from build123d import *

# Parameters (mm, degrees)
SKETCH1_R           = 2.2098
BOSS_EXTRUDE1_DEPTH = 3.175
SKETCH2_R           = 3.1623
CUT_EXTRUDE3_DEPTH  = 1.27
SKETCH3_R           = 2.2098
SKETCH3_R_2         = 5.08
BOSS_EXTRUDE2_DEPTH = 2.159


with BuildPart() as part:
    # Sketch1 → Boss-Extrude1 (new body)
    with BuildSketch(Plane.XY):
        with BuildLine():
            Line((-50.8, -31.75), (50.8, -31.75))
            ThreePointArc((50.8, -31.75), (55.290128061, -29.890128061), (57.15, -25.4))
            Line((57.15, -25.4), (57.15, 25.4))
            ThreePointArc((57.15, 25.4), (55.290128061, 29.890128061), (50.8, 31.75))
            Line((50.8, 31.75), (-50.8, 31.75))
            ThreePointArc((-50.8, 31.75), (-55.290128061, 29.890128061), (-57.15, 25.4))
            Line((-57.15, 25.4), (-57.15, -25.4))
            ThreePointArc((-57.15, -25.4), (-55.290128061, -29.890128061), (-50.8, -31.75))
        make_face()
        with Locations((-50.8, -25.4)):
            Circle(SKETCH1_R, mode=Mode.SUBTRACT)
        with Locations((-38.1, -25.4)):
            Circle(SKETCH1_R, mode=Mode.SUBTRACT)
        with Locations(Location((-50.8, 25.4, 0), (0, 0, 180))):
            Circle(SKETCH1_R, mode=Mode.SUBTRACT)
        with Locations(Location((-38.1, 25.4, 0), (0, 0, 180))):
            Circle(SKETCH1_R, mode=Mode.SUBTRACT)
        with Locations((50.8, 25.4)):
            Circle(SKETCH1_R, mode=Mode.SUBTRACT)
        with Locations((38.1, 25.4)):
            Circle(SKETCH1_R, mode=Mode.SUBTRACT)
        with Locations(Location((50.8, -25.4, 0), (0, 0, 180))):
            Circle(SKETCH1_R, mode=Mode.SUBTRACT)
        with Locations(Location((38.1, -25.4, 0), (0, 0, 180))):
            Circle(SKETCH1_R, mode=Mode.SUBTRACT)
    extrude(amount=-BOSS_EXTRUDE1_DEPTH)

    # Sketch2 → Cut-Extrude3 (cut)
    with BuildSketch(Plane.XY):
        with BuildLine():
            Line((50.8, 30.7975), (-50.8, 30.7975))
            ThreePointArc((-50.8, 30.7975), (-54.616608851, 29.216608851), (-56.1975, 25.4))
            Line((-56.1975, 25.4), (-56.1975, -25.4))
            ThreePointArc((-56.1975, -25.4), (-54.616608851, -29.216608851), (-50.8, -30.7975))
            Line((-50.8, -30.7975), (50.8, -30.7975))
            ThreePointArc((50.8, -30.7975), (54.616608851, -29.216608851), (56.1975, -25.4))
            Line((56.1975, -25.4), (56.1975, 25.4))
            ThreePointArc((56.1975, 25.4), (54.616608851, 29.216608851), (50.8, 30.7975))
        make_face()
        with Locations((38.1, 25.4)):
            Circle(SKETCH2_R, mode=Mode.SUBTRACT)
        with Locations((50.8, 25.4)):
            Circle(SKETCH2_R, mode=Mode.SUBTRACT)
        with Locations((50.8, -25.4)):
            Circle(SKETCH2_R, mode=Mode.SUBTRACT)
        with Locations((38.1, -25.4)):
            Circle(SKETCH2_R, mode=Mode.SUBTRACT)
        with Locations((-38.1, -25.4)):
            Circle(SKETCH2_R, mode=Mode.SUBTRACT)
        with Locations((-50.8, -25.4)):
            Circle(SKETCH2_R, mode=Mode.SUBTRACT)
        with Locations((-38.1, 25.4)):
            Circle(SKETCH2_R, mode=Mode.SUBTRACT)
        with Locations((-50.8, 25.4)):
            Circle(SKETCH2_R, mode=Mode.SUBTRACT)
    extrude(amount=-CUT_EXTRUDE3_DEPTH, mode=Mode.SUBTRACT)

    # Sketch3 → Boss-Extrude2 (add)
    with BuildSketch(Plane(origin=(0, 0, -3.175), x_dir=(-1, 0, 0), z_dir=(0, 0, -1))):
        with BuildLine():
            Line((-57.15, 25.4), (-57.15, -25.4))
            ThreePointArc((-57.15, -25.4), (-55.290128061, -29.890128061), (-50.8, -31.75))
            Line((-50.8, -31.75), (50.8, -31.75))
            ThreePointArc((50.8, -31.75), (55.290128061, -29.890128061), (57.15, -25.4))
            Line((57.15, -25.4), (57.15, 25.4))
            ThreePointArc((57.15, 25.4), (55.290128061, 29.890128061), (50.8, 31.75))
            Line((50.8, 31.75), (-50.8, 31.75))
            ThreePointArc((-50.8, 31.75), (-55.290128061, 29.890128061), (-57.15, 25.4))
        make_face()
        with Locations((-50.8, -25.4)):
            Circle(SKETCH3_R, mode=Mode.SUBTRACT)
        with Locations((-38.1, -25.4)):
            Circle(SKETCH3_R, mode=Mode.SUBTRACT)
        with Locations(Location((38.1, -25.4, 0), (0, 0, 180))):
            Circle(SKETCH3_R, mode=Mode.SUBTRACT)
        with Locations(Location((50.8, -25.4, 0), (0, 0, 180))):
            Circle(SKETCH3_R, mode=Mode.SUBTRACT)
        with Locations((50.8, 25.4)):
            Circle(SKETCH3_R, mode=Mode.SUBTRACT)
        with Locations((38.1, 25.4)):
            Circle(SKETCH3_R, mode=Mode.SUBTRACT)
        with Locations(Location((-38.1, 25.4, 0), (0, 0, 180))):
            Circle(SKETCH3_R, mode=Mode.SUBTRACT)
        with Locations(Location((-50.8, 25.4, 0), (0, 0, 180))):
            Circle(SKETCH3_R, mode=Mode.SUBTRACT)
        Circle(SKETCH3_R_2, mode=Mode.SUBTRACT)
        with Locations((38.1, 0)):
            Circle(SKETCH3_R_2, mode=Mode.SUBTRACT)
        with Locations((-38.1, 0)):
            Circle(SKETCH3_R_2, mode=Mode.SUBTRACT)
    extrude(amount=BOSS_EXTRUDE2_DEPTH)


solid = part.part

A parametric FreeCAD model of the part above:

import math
import FreeCAD as App
import Part
import Sketcher
from FreeCAD import Vector
Q = App.Units.Quantity

doc = App.newDocument("Part")
params = doc.addObject("Spreadsheet::Sheet", "Params")
for row, (alias, value) in enumerate([
    ("sketch1_width", "4 in"),
    ("sketch1_height", "2 in"),
    ("sketch1_radius", "0.25 in"),
    ("sketch1_diameter", "0.174 in"),
    ("pad1_length", "0.125 in"),
    ("sketch2_width", "4 in"),
    ("sketch2_height", "2 in"),
    ("sketch2_diameter", "0.249 in"),
    ("pocket1_length", "0.05 in"),
    ("sketch3_diameter", "0.4 in"),
    ("sketch3_width", "4 in"),
    ("sketch3_height", "2 in"),
    ("sketch3_radius", "0.25 in"),
    ("sketch3_diameter2", "0.174 in"),
    ("pad2_length", "0.085 in"),
], start=1):
    params.set(f"A{row}", alias)
    params.set(f"B{row}", "=" + value)
    params.setAlias(f"B{row}", alias)

body = doc.addObject("PartDesign::Body", "Body")

# Sketch on XY plane
sketch1 = body.newObject("Sketcher::SketchObject", "Sketch")
sketch1.AttachmentSupport = (doc.getObject("XY_Plane"), [""])
sketch1.MapMode = "FlatFace"
sketch1.addGeometry(Part.LineSegment(Vector(-50.8, -31.8, 0), Vector(50.8, -31.8, 0)), False)
sketch1.addGeometry(Part.ArcOfCircle(Part.Circle(Vector(50.8, -25.4, 0), Vector(0, 0, 1), 6.3), math.radians(-90), math.radians(0)), False)
sketch1.addGeometry(Part.LineSegment(Vector(57.1, -25.4, 0), Vector(57.1, 25.4, 0)), False)
sketch1.addGeometry(Part.ArcOfCircle(Part.Circle(Vector(50.8, 25.4, 0), Vector(0, 0, 1), 6.3), math.radians(0), math.radians(90)), False)
sketch1.addGeometry(Part.LineSegment(Vector(50.8, 31.8, 0), Vector(-50.8, 31.8, 0)), False)
sketch1.addGeometry(Part.ArcOfCircle(Part.Circle(Vector(-50.8, 25.4, 0), Vector(0, 0, 1), 6.3), math.radians(90), math.radians(180)), False)
sketch1.addGeometry(Part.LineSegment(Vector(-57.1, 25.4, 0), Vector(-57.1, -25.4, 0)), False)
sketch1.addGeometry(Part.ArcOfCircle(Part.Circle(Vector(-50.8, -25.4, 0), Vector(0, 0, 1), 6.3), math.radians(180), math.radians(270)), False)
sketch1.addGeometry(Part.Circle(Vector(-50.8, -25.4, 0), Vector(0, 0, 1), 2.2), False)
sketch1.addGeometry(Part.Circle(Vector(-38.1, -25.4, 0), Vector(0, 0, 1), 2.2), False)
sketch1.addGeometry(Part.Circle(Vector(38.1, -25.4, 0), Vector(0, 0, 1), 2.2), False)
sketch1.addGeometry(Part.Circle(Vector(50.8, -25.4, 0), Vector(0, 0, 1), 2.2), False)
sketch1.addGeometry(Part.Circle(Vector(-50.8, 25.4, 0), Vector(0, 0, 1), 2.2), False)
sketch1.addGeometry(Part.Circle(Vector(-38.1, 25.4, 0), Vector(0, 0, 1), 2.2), False)
sketch1.addGeometry(Part.Circle(Vector(38.1, 25.4, 0), Vector(0, 0, 1), 2.2), False)
sketch1.addGeometry(Part.Circle(Vector(50.8, 25.4, 0), Vector(0, 0, 1), 2.2), False)
sketch1.addConstraint(Sketcher.Constraint("Tangent", 0, 2, 1, 1))
sketch1.addConstraint(Sketcher.Constraint("Tangent", 1, 2, 2, 1))
sketch1.addConstraint(Sketcher.Constraint("Tangent", 2, 2, 3, 1))
sketch1.addConstraint(Sketcher.Constraint("Tangent", 3, 2, 4, 1))
sketch1.addConstraint(Sketcher.Constraint("Tangent", 4, 2, 5, 1))
sketch1.addConstraint(Sketcher.Constraint("Tangent", 5, 2, 6, 1))
sketch1.addConstraint(Sketcher.Constraint("Tangent", 6, 2, 7, 1))
sketch1.addConstraint(Sketcher.Constraint("Tangent", 7, 2, 0, 1))
sketch1.addConstraint(Sketcher.Constraint("Horizontal", 0))
sketch1.addConstraint(Sketcher.Constraint("Vertical", 2))
sketch1.addConstraint(Sketcher.Constraint("Horizontal", 4))
sketch1.addConstraint(Sketcher.Constraint("Vertical", 6))
sketch1.addConstraint(Sketcher.Constraint("Coincident", 8, 3, 7, 3))
sketch1.addConstraint(Sketcher.Constraint("Coincident", 11, 3, 1, 3))
sketch1.addConstraint(Sketcher.Constraint("Coincident", 12, 3, 5, 3))
sketch1.addConstraint(Sketcher.Constraint("Coincident", 15, 3, 3, 3))
sketch1.addConstraint(Sketcher.Constraint("Equal", 1, 3))
sketch1.addConstraint(Sketcher.Constraint("Equal", 3, 5))
sketch1.addConstraint(Sketcher.Constraint("Equal", 5, 7))
sketch1.addConstraint(Sketcher.Constraint("Equal", 8, 9))
sketch1.addConstraint(Sketcher.Constraint("Equal", 9, 10))
sketch1.addConstraint(Sketcher.Constraint("Equal", 10, 11))
sketch1.addConstraint(Sketcher.Constraint("Equal", 11, 12))
sketch1.addConstraint(Sketcher.Constraint("Equal", 12, 13))
sketch1.addConstraint(Sketcher.Constraint("Equal", 13, 14))
sketch1.addConstraint(Sketcher.Constraint("Equal", 14, 15))
sketch1.addConstraint(Sketcher.Constraint("Symmetric", 1, 3, 5, 3, -1, 1))
sketch1.addConstraint(Sketcher.Constraint("Symmetric", 10, 3, 13, 3, -1, 1))
sketch1.addConstraint(Sketcher.Constraint("Symmetric", 9, 3, 14, 3, -1, 1))
sketch1.addConstraint(Sketcher.Constraint("Symmetric", 9, 3, 10, 3, -2))
sketch1.addConstraint(Sketcher.Constraint("Horizontal", 8, 3, 9, 3))
sketch1.addConstraint(Sketcher.Constraint("DistanceX", 0, 1, 0, 2, Q("4 in")))
sketch1.addConstraint(Sketcher.Constraint("DistanceY", 2, 1, 2, 2, Q("2 in")))
sketch1.addConstraint(Sketcher.Constraint("Radius", 1, Q("0.25 in")))
sketch1.addConstraint(Sketcher.Constraint("Diameter", 8, Q("0.174 in")))
sketch1.addConstraint(Sketcher.Constraint("DistanceX", 9, 3, 10, 3, Q("3 in")))
sketch1.setExpression("Constraints[31]", "Params.sketch1_width")
sketch1.setExpression("Constraints[32]", "Params.sketch1_height")
sketch1.setExpression("Constraints[33]", "Params.sketch1_radius")
sketch1.setExpression("Constraints[34]", "Params.sketch1_diameter")
pad1 = body.newObject("PartDesign::Pad", "Pad")
pad1.Profile = sketch1
pad1.setExpression("Length", "Params.pad1_length")
pad1.Reversed = True

# Sketch on XY plane
sketch2 = body.newObject("Sketcher::SketchObject", "Sketch001")
sketch2.AttachmentSupport = (doc.getObject("XY_Plane"), [""])
sketch2.MapMode = "FlatFace"
sketch2.addGeometry(Part.LineSegment(Vector(50.8, 30.8, 0), Vector(-50.8, 30.8, 0)), False)
sketch2.addGeometry(Part.ArcOfCircle(Part.Circle(Vector(-50.8, 25.4, 0), Vector(0, 0, 1), 5.4), math.radians(90), math.radians(180)), False)
sketch2.addGeometry(Part.LineSegment(Vector(-56.2, 25.4, 0), Vector(-56.2, -25.4, 0)), False)
sketch2.addGeometry(Part.ArcOfCircle(Part.Circle(Vector(-50.8, -25.4, 0), Vector(0, 0, 1), 5.4), math.radians(-180), math.radians(-90)), False)
sketch2.addGeometry(Part.LineSegment(Vector(-50.8, -30.8, 0), Vector(50.8, -30.8, 0)), False)
sketch2.addGeometry(Part.ArcOfCircle(Part.Circle(Vector(50.8, -25.4, 0), Vector(0, 0, 1), 5.4), math.radians(-90), math.radians(0)), False)
sketch2.addGeometry(Part.LineSegment(Vector(56.2, -25.4, 0), Vector(56.2, 25.4, 0)), False)
sketch2.addGeometry(Part.ArcOfCircle(Part.Circle(Vector(50.8, 25.4, 0), Vector(0, 0, 1), 5.4), math.radians(0), math.radians(90)), False)
sketch2.addGeometry(Part.Circle(Vector(-50.8, -25.4, 0), Vector(0, 0, 1), 3.2), False)
sketch2.addGeometry(Part.Circle(Vector(-38.1, -25.4, 0), Vector(0, 0, 1), 3.2), False)
sketch2.addGeometry(Part.Circle(Vector(38.1, -25.4, 0), Vector(0, 0, 1), 3.2), False)
sketch2.addGeometry(Part.Circle(Vector(50.8, -25.4, 0), Vector(0, 0, 1), 3.2), False)
sketch2.addGeometry(Part.Circle(Vector(-50.8, 25.4, 0), Vector(0, 0, 1), 3.2), False)
sketch2.addGeometry(Part.Circle(Vector(-38.1, 25.4, 0), Vector(0, 0, 1), 3.2), False)
sketch2.addGeometry(Part.Circle(Vector(38.1, 25.4, 0), Vector(0, 0, 1), 3.2), False)
sketch2.addGeometry(Part.Circle(Vector(50.8, 25.4, 0), Vector(0, 0, 1), 3.2), False)
sketch2.addConstraint(Sketcher.Constraint("Tangent", 0, 2, 1, 1))
sketch2.addConstraint(Sketcher.Constraint("Tangent", 1, 2, 2, 1))
sketch2.addConstraint(Sketcher.Constraint("Tangent", 2, 2, 3, 1))
sketch2.addConstraint(Sketcher.Constraint("Tangent", 3, 2, 4, 1))
sketch2.addConstraint(Sketcher.Constraint("Tangent", 4, 2, 5, 1))
sketch2.addConstraint(Sketcher.Constraint("Tangent", 5, 2, 6, 1))
sketch2.addConstraint(Sketcher.Constraint("Tangent", 6, 2, 7, 1))
sketch2.addConstraint(Sketcher.Constraint("Tangent", 7, 2, 0, 1))
sketch2.addConstraint(Sketcher.Constraint("Horizontal", 0))
sketch2.addConstraint(Sketcher.Constraint("Vertical", 2))
sketch2.addConstraint(Sketcher.Constraint("Horizontal", 4))
sketch2.addConstraint(Sketcher.Constraint("Vertical", 6))
sketch2.addConstraint(Sketcher.Constraint("Coincident", 8, 3, 3, 3))
sketch2.addConstraint(Sketcher.Constraint("Coincident", 11, 3, 5, 3))
sketch2.addConstraint(Sketcher.Constraint("Coincident", 12, 3, 1, 3))
sketch2.addConstraint(Sketcher.Constraint("Coincident", 15, 3, 7, 3))
sketch2.addConstraint(Sketcher.Constraint("Equal", 1, 3))
sketch2.addConstraint(Sketcher.Constraint("Equal", 3, 5))
sketch2.addConstraint(Sketcher.Constraint("Equal", 5, 7))
sketch2.addConstraint(Sketcher.Constraint("Equal", 8, 9))
sketch2.addConstraint(Sketcher.Constraint("Equal", 9, 10))
sketch2.addConstraint(Sketcher.Constraint("Equal", 10, 11))
sketch2.addConstraint(Sketcher.Constraint("Equal", 11, 12))
sketch2.addConstraint(Sketcher.Constraint("Equal", 12, 13))
sketch2.addConstraint(Sketcher.Constraint("Equal", 13, 14))
sketch2.addConstraint(Sketcher.Constraint("Equal", 14, 15))
sketch2.addConstraint(Sketcher.Constraint("Symmetric", 1, 3, 5, 3, -1, 1))
sketch2.addConstraint(Sketcher.Constraint("Symmetric", 10, 3, 13, 3, -1, 1))
sketch2.addConstraint(Sketcher.Constraint("Symmetric", 9, 3, 14, 3, -1, 1))
sketch2.addConstraint(Sketcher.Constraint("Symmetric", 9, 3, 10, 3, -2))
sketch2.addConstraint(Sketcher.Constraint("Horizontal", 8, 3, 9, 3))
sketch2.addConstraint(Sketcher.Constraint("DistanceX", 0, 2, 0, 1, Q("4 in")))
sketch2.addConstraint(Sketcher.Constraint("DistanceY", 2, 2, 2, 1, Q("2 in")))
sketch2.addConstraint(Sketcher.Constraint("Diameter", 8, Q("0.249 in")))
sketch2.addConstraint(Sketcher.Constraint("DistanceX", 9, 3, 10, 3, Q("3 in")))
sketch2.addConstraint(Sketcher.Constraint("Radius", 1, Q("0.2125 in")))
sketch2.setExpression("Constraints[31]", "Params.sketch2_width")
sketch2.setExpression("Constraints[32]", "Params.sketch2_height")
sketch2.setExpression("Constraints[33]", "Params.sketch2_diameter")
pocket1 = body.newObject("PartDesign::Pocket", "Pocket")
pocket1.Profile = sketch2
pocket1.setExpression("Length", "Params.pocket1_length")

# Sketch on XY plane
sketch3 = body.newObject("Sketcher::SketchObject", "Sketch002")
sketch3.AttachmentSupport = (doc.getObject("XY_Plane"), [""])
sketch3.MapMode = "FlatFace"
sketch3.AttachmentOffset = App.Placement(Vector(0, 0, -0.125 * 25.4), App.Rotation())
sketch3.addGeometry(Part.LineSegment(Vector(57.1, 25.4, 0), Vector(57.1, -25.4, 0)), False)
sketch3.addGeometry(Part.ArcOfCircle(Part.Circle(Vector(50.8, -25.4, 0), Vector(0, 0, 1), 6.3), math.radians(-90), math.radians(0)), False)
sketch3.addGeometry(Part.LineSegment(Vector(50.8, -31.8, 0), Vector(-50.8, -31.8, 0)), False)
sketch3.addGeometry(Part.ArcOfCircle(Part.Circle(Vector(-50.8, -25.4, 0), Vector(0, 0, 1), 6.3), math.radians(180), math.radians(270)), False)
sketch3.addGeometry(Part.LineSegment(Vector(-57.1, -25.4, 0), Vector(-57.1, 25.4, 0)), False)
sketch3.addGeometry(Part.ArcOfCircle(Part.Circle(Vector(-50.8, 25.4, 0), Vector(0, 0, 1), 6.3), math.radians(90), math.radians(180)), False)
sketch3.addGeometry(Part.LineSegment(Vector(-50.8, 31.8, 0), Vector(50.8, 31.8, 0)), False)
sketch3.addGeometry(Part.ArcOfCircle(Part.Circle(Vector(50.8, 25.4, 0), Vector(0, 0, 1), 6.3), math.radians(0), math.radians(90)), False)
sketch3.addGeometry(Part.Circle(Vector(50.8, -25.4, 0), Vector(0, 0, 1), 2.2), False)
sketch3.addGeometry(Part.Circle(Vector(38.1, -25.4, 0), Vector(0, 0, 1), 2.2), False)
sketch3.addGeometry(Part.Circle(Vector(38.1, 0, 0), Vector(0, 0, 1), 5.1), False)
sketch3.addGeometry(Part.Circle(Vector(-38.1, -25.4, 0), Vector(0, 0, 1), 2.2), False)
sketch3.addGeometry(Part.Circle(Vector(-50.8, -25.4, 0), Vector(0, 0, 1), 2.2), False)
sketch3.addGeometry(Part.Circle(Vector(0, 0, 0), Vector(0, 0, 1), 5.1), False)
sketch3.addGeometry(Part.Circle(Vector(-38.1, 0, 0), Vector(0, 0, 1), 5.1), False)
sketch3.addGeometry(Part.Circle(Vector(50.8, 25.4, 0), Vector(0, 0, 1), 2.2), False)
sketch3.addGeometry(Part.Circle(Vector(38.1, 25.4, 0), Vector(0, 0, 1), 2.2), False)
sketch3.addGeometry(Part.Circle(Vector(-38.1, 25.4, 0), Vector(0, 0, 1), 2.2), False)
sketch3.addGeometry(Part.Circle(Vector(-50.8, 25.4, 0), Vector(0, 0, 1), 2.2), False)
sketch3.addConstraint(Sketcher.Constraint("Tangent", 0, 2, 1, 2))
sketch3.addConstraint(Sketcher.Constraint("Tangent", 1, 1, 2, 1))
sketch3.addConstraint(Sketcher.Constraint("Tangent", 2, 2, 3, 2))
sketch3.addConstraint(Sketcher.Constraint("Tangent", 3, 1, 4, 1))
sketch3.addConstraint(Sketcher.Constraint("Tangent", 4, 2, 5, 2))
sketch3.addConstraint(Sketcher.Constraint("Tangent", 5, 1, 6, 1))
sketch3.addConstraint(Sketcher.Constraint("Tangent", 6, 2, 7, 2))
sketch3.addConstraint(Sketcher.Constraint("Tangent", 7, 1, 0, 1))
sketch3.addConstraint(Sketcher.Constraint("Vertical", 0))
sketch3.addConstraint(Sketcher.Constraint("Horizontal", 2))
sketch3.addConstraint(Sketcher.Constraint("Vertical", 4))
sketch3.addConstraint(Sketcher.Constraint("Horizontal", 6))
sketch3.addConstraint(Sketcher.Constraint("Coincident", 13, 3, -1, 1))
sketch3.addConstraint(Sketcher.Constraint("Coincident", 8, 3, 1, 3))
sketch3.addConstraint(Sketcher.Constraint("Coincident", 12, 3, 3, 3))
sketch3.addConstraint(Sketcher.Constraint("Coincident", 15, 3, 7, 3))
sketch3.addConstraint(Sketcher.Constraint("Coincident", 18, 3, 5, 3))
sketch3.addConstraint(Sketcher.Constraint("Equal", 1, 3))
sketch3.addConstraint(Sketcher.Constraint("Equal", 3, 5))
sketch3.addConstraint(Sketcher.Constraint("Equal", 5, 7))
sketch3.addConstraint(Sketcher.Constraint("Equal", 8, 9))
sketch3.addConstraint(Sketcher.Constraint("Equal", 9, 11))
sketch3.addConstraint(Sketcher.Constraint("Equal", 11, 12))
sketch3.addConstraint(Sketcher.Constraint("Equal", 10, 13))
sketch3.addConstraint(Sketcher.Constraint("Equal", 13, 14))
sketch3.addConstraint(Sketcher.Constraint("Equal", 12, 15))
sketch3.addConstraint(Sketcher.Constraint("Equal", 15, 16))
sketch3.addConstraint(Sketcher.Constraint("Equal", 16, 17))
sketch3.addConstraint(Sketcher.Constraint("Equal", 17, 18))
sketch3.addConstraint(Sketcher.Constraint("Symmetric", 1, 3, 5, 3, -1, 1))
sketch3.addConstraint(Sketcher.Constraint("Symmetric", 10, 3, 14, 3, -1, 1))
sketch3.addConstraint(Sketcher.Constraint("Symmetric", 11, 3, 16, 3, -1, 1))
sketch3.addConstraint(Sketcher.Constraint("Symmetric", 9, 3, 17, 3, -1, 1))
sketch3.addConstraint(Sketcher.Constraint("Symmetric", 9, 3, 11, 3, -2))
sketch3.addConstraint(Sketcher.Constraint("PointOnObject", 10, 3, -1))
sketch3.addConstraint(Sketcher.Constraint("Horizontal", 8, 3, 9, 3))
sketch3.addConstraint(Sketcher.Constraint("Vertical", 9, 3, 10, 3))
sketch3.addConstraint(Sketcher.Constraint("Diameter", 10, Q("0.4 in")))
sketch3.addConstraint(Sketcher.Constraint("DistanceX", 2, 2, 2, 1, Q("4 in")))
sketch3.addConstraint(Sketcher.Constraint("DistanceY", 0, 2, 0, 1, Q("2 in")))
sketch3.addConstraint(Sketcher.Constraint("Radius", 1, Q("0.25 in")))
sketch3.addConstraint(Sketcher.Constraint("Diameter", 8, Q("0.174 in")))
sketch3.addConstraint(Sketcher.Constraint("DistanceX", 11, 3, 9, 3, Q("3 in")))
sketch3.setExpression("Constraints[37]", "Params.sketch3_diameter")
sketch3.setExpression("Constraints[38]", "Params.sketch3_width")
sketch3.setExpression("Constraints[39]", "Params.sketch3_height")
sketch3.setExpression("Constraints[40]", "Params.sketch3_radius")
sketch3.setExpression("Constraints[41]", "Params.sketch3_diameter2")
pad2 = body.newObject("PartDesign::Pad", "Pad001")
pad2.Profile = sketch3
pad2.setExpression("Length", "Params.pad2_length")
pad2.Reversed = True

doc.recompute()
